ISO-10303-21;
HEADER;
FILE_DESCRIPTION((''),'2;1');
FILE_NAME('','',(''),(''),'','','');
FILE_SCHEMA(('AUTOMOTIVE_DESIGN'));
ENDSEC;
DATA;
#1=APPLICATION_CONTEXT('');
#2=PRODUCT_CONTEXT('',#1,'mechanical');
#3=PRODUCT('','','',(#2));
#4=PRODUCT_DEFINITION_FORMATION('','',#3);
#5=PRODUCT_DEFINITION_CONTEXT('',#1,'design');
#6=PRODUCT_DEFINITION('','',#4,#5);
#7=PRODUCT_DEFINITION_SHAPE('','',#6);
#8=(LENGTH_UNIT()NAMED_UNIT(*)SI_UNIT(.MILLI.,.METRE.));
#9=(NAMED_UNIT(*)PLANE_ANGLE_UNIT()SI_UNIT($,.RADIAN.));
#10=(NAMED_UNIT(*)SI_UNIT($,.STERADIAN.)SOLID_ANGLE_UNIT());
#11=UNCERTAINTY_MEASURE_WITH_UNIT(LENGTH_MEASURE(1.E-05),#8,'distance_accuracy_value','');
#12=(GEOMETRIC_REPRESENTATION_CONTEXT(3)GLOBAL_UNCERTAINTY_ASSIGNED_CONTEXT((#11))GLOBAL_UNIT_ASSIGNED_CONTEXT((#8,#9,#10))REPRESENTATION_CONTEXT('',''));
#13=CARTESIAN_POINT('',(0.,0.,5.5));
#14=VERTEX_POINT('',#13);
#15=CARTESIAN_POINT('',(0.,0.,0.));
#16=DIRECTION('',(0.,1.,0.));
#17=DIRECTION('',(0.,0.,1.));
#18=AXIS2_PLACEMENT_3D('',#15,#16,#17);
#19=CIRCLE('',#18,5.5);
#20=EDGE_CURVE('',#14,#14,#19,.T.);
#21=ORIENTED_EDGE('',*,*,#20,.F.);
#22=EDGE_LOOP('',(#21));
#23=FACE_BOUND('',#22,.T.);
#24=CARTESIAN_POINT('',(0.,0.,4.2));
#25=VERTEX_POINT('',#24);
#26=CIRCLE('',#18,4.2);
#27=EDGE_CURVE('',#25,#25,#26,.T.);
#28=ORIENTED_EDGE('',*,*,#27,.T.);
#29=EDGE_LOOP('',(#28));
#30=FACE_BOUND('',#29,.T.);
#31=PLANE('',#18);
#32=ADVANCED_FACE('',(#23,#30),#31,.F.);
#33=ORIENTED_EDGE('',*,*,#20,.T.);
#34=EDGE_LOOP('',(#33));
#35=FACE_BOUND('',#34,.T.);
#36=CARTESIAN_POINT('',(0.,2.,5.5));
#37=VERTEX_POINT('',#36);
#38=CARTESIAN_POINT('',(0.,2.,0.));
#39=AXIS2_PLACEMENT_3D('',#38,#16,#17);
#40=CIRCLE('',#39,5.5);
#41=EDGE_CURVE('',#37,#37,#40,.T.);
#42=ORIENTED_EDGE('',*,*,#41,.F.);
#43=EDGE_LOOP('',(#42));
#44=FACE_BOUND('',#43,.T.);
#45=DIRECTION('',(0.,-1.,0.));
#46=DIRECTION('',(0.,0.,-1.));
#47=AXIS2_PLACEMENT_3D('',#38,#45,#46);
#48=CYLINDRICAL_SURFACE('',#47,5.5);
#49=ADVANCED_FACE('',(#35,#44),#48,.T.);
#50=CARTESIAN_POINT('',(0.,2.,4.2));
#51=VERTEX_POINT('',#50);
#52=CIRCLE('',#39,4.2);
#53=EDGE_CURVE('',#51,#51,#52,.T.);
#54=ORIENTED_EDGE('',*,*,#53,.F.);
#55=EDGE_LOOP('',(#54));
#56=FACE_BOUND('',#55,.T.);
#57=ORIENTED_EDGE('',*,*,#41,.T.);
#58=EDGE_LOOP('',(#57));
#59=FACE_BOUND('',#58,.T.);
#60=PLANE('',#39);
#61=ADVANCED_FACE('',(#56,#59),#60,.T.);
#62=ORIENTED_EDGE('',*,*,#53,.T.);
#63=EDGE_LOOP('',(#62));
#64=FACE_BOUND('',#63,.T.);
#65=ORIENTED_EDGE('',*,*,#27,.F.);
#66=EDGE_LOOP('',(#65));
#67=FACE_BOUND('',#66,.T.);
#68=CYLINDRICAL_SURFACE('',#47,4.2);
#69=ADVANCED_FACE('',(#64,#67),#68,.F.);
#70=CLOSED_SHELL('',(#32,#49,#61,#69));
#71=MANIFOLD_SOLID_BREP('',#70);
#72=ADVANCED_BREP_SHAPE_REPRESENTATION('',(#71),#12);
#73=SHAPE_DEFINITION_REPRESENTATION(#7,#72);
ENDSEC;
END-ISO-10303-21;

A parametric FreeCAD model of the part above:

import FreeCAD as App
import Part
import Sketcher
from FreeCAD import Vector
Q = App.Units.Quantity

doc = App.newDocument("Part")
params = doc.addObject("Spreadsheet::Sheet", "Params")
for row, (alias, value) in enumerate([
    ("sketch1_diameter", "11 mm"),
    ("sketch1_diameter2", "8.4 mm"),
    ("pad1_length", "2 mm"),
], start=1):
    params.set(f"A{row}", alias)
    params.set(f"B{row}", "=" + value)
    params.setAlias(f"B{row}", alias)

body = doc.addObject("PartDesign::Body", "Body")

# Sketch on XZ plane
sketch1 = body.newObject("Sketcher::SketchObject", "Sketch")
sketch1.AttachmentSupport = (doc.getObject("XZ_Plane"), [""])
sketch1.MapMode = "FlatFace"
sketch1.addGeometry([
    Part.Circle(Vector(0, 0, 0), Vector(0, 0, 1), 5.5),
    Part.Circle(Vector(0, 0, 0), Vector(0, 0, 1), 4.2),
], False)
sketch1.addConstraint([
    Sketcher.Constraint("Coincident", 0, 3, -1, 1),
    Sketcher.Constraint("Coincident", 1, 3, -1, 1),
    Sketcher.Constraint("Diameter", 0, Q("11 mm")),
    Sketcher.Constraint("Diameter", 1, Q("8.4 mm")),
])
sketch1.setExpression("Constraints[2]", "Params.sketch1_diameter")
sketch1.setExpression("Constraints[3]", "Params.sketch1_diameter2")
pad1 = body.newObject("PartDesign::Pad", "Pad")
pad1.Profile = sketch1
pad1.setExpression("Length", "Params.pad1_length")
pad1.Reversed = True

doc.recompute()
